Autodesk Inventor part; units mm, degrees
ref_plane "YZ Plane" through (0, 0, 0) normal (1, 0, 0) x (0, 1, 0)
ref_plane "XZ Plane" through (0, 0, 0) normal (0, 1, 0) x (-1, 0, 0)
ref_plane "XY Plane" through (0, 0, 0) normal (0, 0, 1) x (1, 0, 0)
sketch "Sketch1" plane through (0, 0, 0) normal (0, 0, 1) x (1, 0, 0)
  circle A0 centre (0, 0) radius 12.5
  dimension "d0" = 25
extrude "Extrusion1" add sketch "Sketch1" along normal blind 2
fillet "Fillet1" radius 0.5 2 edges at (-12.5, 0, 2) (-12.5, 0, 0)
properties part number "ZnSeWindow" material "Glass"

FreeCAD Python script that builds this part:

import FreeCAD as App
import Part
import Sketcher


def edges_at(feature, points):
    """Names of the edges that pass closest to the given points."""
    edges = feature.Shape.Edges
    near = lambda p: min(range(len(edges)), key=lambda i: edges[i].distToShape(Part.Vertex(*p))[0])
    return sorted({f"Edge{near(p) + 1}" for p in points})

doc = App.newDocument("Part")
params = doc.addObject("Spreadsheet::Sheet", "Params")
for row, (alias, value) in enumerate([
    ("sketch1_diameter", "25 mm"),
    ("pad1_length", "2 mm"),
    ("fillet_radius", "0.5 mm"),
], start=1):
    params.set(f"A{row}", alias)
    params.set(f"B{row}", "=" + value)
    params.setAlias(f"B{row}", alias)

body = doc.addObject("PartDesign::Body", "Body")

# Sketch on XY plane
sketch1 = body.newObject("Sketcher::SketchObject", "Sketch")
sketch1.AttachmentSupport = (doc.getObject("XY_Plane"), [""])
sketch1.MapMode = "FlatFace"
sketch1.addGeometry(Part.Circle(App.Vector(0, 0, 0), App.Vector(0, 0, 1), 12), False)
sketch1.addConstraint([
    Sketcher.Constraint("Coincident", 0, 3, -1, 1),
    Sketcher.Constraint("Diameter", 0, 25.0),
])
sketch1.setExpression("Constraints[1]", "Params.sketch1_diameter")
pad1 = body.newObject("PartDesign::Pad", "Pad")
pad1.Profile = sketch1
pad1.setExpression("Length", "Params.pad1_length")
doc.recompute()

fillet = body.newObject("PartDesign::Fillet", "Fillet")
fillet.Base = (pad1, edges_at(pad1, [(-12.5, 0, 2), (-12.5, 0, 0)]))
fillet.setExpression("Radius", "Params.fillet_radius")

doc.recompute()
